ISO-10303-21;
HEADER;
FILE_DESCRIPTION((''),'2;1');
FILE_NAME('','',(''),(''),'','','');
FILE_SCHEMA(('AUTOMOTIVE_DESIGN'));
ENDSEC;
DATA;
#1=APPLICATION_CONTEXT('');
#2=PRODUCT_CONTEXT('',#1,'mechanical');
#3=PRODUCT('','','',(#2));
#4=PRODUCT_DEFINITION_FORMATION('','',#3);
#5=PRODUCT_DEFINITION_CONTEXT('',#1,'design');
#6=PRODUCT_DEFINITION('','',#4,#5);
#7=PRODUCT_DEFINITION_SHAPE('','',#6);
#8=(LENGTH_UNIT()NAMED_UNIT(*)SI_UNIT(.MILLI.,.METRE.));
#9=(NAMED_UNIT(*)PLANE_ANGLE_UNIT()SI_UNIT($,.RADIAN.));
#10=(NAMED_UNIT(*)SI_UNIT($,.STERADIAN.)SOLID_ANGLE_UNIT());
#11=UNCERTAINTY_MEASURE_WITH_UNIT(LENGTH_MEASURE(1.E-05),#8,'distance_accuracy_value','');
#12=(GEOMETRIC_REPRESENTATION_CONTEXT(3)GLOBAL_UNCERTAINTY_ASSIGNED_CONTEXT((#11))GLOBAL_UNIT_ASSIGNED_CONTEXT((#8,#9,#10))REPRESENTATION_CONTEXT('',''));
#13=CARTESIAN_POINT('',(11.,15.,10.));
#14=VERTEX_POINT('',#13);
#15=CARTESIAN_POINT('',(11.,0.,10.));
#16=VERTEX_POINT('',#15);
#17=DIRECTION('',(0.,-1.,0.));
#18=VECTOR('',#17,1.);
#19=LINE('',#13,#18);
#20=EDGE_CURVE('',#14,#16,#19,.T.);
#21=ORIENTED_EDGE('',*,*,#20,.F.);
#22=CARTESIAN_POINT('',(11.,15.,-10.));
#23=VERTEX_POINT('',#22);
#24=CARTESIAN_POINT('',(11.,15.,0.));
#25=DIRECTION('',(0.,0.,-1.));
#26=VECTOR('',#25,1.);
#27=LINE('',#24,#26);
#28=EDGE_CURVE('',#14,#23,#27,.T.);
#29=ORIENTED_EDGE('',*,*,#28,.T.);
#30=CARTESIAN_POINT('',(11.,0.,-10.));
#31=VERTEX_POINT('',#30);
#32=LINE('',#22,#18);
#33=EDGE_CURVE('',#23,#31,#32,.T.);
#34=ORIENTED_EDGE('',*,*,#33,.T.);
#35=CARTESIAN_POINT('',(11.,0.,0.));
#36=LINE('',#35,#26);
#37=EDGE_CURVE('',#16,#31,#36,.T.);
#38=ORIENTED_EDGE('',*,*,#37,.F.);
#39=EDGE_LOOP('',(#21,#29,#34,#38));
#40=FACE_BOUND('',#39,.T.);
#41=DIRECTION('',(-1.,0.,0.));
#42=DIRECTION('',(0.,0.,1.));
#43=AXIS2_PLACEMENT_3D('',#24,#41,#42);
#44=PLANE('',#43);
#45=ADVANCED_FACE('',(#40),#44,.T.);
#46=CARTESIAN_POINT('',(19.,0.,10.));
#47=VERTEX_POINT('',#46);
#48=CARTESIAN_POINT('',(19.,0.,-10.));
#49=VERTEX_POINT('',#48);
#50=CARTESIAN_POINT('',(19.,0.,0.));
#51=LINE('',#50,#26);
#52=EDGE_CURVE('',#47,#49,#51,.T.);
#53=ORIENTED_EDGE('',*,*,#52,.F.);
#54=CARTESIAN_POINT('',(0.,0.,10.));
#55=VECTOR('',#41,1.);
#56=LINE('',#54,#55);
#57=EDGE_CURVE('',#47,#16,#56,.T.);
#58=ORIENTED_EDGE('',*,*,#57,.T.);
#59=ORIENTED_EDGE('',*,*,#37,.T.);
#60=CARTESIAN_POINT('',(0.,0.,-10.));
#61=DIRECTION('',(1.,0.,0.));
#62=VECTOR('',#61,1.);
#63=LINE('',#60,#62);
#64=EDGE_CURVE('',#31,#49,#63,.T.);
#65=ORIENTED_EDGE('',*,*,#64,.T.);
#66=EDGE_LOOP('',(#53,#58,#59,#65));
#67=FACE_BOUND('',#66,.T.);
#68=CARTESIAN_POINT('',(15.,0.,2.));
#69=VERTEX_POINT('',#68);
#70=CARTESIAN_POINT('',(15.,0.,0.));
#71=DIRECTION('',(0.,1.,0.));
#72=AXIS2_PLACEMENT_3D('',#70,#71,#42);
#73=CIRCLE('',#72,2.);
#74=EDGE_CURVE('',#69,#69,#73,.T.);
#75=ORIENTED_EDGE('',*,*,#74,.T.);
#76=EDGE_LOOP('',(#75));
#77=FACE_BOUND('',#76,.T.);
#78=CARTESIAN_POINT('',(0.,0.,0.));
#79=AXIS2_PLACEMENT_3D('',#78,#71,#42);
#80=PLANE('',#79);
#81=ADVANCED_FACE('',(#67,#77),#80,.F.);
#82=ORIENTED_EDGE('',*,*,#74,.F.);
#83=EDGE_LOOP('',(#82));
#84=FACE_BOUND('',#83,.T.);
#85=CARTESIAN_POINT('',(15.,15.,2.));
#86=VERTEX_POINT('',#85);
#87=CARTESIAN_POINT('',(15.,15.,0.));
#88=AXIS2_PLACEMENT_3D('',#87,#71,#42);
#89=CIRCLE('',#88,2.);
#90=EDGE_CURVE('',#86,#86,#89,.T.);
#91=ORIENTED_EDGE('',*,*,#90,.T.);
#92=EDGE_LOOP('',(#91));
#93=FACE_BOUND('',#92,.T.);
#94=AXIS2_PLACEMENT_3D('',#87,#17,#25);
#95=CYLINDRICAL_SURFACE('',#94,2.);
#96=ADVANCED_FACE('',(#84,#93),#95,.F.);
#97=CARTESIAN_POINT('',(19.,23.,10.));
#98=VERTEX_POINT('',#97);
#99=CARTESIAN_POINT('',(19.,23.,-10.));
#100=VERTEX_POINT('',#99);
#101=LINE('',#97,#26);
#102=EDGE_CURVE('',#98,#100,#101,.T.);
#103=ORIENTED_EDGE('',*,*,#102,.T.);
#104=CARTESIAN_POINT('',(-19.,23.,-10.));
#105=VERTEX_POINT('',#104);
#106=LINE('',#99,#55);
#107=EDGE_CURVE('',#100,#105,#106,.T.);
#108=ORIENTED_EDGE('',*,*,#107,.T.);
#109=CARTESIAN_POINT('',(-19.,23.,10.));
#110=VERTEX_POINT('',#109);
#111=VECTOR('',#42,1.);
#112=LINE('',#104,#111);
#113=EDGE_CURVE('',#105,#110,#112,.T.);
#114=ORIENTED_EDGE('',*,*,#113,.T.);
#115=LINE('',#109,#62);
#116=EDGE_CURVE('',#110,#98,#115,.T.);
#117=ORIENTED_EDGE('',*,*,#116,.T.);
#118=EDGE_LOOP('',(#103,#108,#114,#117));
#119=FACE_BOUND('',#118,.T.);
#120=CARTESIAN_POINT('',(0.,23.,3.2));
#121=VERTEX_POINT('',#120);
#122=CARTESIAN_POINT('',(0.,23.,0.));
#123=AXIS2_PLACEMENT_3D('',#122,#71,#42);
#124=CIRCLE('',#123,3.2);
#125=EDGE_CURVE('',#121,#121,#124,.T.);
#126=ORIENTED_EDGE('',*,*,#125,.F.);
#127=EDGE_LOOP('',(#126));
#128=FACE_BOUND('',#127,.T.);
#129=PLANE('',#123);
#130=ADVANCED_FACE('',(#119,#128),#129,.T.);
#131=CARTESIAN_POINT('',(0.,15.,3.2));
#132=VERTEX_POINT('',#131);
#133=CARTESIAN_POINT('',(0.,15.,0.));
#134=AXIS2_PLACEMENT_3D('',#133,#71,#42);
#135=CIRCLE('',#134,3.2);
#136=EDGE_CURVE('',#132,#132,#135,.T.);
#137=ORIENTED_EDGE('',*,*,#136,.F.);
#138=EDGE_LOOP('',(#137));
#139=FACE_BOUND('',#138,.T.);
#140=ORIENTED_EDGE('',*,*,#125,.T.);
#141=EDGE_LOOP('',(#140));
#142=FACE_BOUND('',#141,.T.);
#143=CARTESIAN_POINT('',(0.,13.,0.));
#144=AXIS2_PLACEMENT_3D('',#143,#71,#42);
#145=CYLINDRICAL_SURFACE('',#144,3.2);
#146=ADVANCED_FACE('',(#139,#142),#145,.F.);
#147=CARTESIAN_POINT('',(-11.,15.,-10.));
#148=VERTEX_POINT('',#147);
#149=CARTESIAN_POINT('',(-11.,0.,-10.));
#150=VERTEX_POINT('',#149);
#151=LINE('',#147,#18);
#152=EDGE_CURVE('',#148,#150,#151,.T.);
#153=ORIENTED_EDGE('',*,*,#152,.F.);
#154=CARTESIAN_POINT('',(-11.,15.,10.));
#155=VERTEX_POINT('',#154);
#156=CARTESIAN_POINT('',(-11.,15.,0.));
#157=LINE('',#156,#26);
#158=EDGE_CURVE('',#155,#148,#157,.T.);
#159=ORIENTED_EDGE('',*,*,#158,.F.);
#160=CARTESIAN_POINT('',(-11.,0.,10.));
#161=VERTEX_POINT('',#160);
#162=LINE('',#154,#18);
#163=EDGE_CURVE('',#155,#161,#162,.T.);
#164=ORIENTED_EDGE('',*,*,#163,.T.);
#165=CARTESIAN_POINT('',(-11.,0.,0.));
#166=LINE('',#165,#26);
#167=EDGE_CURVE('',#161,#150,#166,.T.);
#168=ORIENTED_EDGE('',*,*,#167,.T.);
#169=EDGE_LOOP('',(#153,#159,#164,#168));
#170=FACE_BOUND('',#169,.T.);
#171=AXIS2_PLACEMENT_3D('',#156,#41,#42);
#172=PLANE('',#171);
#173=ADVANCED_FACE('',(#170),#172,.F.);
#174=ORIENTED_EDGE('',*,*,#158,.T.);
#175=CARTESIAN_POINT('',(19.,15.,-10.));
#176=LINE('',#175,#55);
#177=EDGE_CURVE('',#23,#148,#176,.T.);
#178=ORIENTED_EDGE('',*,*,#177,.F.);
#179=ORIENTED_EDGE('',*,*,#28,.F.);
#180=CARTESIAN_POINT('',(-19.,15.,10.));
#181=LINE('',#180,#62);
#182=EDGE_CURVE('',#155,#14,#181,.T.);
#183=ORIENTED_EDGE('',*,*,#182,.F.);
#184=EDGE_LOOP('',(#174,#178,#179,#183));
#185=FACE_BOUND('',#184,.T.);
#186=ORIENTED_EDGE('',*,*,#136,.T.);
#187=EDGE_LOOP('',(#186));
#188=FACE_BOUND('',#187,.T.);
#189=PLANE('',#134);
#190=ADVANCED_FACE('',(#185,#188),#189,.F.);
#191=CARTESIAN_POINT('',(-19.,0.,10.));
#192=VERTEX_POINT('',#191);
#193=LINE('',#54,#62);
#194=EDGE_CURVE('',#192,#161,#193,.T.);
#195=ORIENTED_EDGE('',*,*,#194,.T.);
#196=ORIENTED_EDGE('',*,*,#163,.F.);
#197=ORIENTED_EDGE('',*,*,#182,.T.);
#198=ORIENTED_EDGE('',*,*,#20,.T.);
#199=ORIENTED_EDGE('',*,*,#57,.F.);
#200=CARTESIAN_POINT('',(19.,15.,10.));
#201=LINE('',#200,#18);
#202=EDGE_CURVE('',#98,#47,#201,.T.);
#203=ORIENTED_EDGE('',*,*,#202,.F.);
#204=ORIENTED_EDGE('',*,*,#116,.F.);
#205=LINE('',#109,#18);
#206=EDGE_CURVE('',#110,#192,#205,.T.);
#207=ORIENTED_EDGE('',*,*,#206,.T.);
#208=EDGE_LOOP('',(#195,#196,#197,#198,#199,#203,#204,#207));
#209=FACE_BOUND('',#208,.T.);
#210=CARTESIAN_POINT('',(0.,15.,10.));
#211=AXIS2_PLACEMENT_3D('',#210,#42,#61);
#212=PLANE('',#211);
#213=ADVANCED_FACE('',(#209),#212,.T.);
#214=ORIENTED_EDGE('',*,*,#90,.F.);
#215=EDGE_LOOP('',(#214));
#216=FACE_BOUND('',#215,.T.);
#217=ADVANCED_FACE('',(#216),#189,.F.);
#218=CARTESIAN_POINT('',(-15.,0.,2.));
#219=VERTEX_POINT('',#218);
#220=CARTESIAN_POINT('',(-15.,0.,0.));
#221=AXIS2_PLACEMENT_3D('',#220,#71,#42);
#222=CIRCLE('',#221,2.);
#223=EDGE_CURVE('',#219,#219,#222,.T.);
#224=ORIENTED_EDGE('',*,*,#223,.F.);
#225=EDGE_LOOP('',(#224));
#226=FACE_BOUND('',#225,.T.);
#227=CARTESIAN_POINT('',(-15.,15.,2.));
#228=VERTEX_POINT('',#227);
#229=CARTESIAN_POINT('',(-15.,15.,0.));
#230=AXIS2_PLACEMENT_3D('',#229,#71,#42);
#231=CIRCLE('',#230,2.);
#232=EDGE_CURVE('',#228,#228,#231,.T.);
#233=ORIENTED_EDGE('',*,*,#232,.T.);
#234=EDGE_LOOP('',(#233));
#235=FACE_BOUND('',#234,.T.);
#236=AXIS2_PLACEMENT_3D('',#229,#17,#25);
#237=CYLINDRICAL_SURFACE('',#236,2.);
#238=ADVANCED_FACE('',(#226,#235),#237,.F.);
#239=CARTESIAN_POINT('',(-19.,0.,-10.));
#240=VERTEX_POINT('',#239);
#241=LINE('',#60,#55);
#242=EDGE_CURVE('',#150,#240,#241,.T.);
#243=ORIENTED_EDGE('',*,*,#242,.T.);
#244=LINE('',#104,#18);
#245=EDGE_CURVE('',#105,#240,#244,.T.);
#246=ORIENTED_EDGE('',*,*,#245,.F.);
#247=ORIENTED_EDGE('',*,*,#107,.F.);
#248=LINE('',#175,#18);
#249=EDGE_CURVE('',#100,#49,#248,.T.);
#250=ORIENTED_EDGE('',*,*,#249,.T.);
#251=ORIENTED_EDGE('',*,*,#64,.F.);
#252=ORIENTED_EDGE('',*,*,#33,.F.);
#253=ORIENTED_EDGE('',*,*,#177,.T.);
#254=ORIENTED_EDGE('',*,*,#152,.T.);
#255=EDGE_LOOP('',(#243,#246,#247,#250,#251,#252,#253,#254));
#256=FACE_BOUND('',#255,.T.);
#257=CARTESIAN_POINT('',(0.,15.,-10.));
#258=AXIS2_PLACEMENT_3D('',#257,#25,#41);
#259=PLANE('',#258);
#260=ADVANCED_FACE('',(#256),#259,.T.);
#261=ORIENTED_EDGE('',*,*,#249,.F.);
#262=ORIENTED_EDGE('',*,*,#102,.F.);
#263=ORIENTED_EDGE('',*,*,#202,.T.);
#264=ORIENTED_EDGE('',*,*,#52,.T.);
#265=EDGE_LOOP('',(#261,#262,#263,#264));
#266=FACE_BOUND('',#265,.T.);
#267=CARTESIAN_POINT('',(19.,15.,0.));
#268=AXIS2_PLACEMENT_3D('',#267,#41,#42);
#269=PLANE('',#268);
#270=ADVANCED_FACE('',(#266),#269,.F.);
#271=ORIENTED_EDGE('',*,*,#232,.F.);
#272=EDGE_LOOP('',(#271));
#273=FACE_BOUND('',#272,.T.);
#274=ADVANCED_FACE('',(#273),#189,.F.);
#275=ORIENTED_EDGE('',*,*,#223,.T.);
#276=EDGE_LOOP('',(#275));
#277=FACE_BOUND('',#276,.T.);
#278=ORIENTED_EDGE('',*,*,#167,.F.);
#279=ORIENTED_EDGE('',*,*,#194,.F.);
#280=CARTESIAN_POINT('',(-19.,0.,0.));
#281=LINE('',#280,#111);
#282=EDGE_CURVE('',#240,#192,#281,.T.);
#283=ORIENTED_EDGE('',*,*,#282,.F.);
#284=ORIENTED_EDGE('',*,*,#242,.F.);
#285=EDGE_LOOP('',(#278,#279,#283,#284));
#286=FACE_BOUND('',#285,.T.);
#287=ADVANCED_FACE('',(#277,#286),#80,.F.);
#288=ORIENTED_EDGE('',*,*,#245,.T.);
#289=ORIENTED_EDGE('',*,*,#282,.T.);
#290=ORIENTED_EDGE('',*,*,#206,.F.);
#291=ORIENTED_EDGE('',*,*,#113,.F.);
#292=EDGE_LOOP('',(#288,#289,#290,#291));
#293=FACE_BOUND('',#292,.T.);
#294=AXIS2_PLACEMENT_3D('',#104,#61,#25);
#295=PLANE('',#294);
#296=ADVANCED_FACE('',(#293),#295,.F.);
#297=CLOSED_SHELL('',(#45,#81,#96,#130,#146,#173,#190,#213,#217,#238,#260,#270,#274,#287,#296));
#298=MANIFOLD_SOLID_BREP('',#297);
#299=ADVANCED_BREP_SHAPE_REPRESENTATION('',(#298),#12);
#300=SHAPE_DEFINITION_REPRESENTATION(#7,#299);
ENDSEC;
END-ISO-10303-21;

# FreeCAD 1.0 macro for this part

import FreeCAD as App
import Part
import Sketcher
Q = App.Units.Quantity


def add_polygon(sketch, points):
    """Adds a closed chain of lines whose ends are joined by coincident constraints."""
    first, n = sketch.GeometryCount, len(points)
    for a, b in zip(points, points[1:] + points[:1]):
        sketch.addGeometry(Part.LineSegment(App.Vector(*a, 0), App.Vector(*b, 0)), False)
    for i in range(n):
        sketch.addConstraint(Sketcher.Constraint("Coincident", first + i, 2, first + (i + 1) % n, 1))

doc = App.newDocument("Part")
body = doc.addObject("PartDesign::Body", "Body")
body.AllowCompound = True

sketch1 = doc.addObject("Sketcher::SketchObject", "Sketch")
body.addObject(sketch1)
sketch1.AttachmentSupport = (doc.XZ_Plane, [""])
sketch1.MapMode = "FlatFace"
add_polygon(sketch1, [(11, -10), (11, 10), (19, 10), (19, -10)])
add_polygon(sketch1, [(-19, 10), (-11, 10), (-11, -10), (-19, -10)])
sketch1.addConstraint(Sketcher.Constraint("Vertical", 0))
sketch1.addConstraint(Sketcher.Constraint("Horizontal", 1))
sketch1.addConstraint(Sketcher.Constraint("Vertical", 2))
sketch1.addConstraint(Sketcher.Constraint("Horizontal", 3))
sketch1.addConstraint(Sketcher.Constraint("Horizontal", 4))
sketch1.addConstraint(Sketcher.Constraint("Vertical", 5))
sketch1.addConstraint(Sketcher.Constraint("Horizontal", 6))
sketch1.addConstraint(Sketcher.Constraint("Vertical", 7))
sketch1.addConstraint(Sketcher.Constraint("Symmetric", 3, 2, 4, 2, -1, 1))
sketch1.addConstraint(Sketcher.Constraint("Symmetric", 1, 2, 6, 2, -1, 1))
sketch1.addConstraint(Sketcher.Constraint("Horizontal", 1, 2, 4, 2))
sketch1.addConstraint(Sketcher.Constraint("DistanceX", 1, 1, 1, 2, Q("8 mm")))
sketch1.addConstraint(Sketcher.Constraint("DistanceY", 0, 1, 0, 2, Q("20 mm")))
sketch1.addConstraint(Sketcher.Constraint("DistanceX", -1, 1, 0, 2, Q("11 mm")))
pad1 = doc.addObject("PartDesign::Pad", "Pad")
body.addObject(pad1)
pad1.Profile = sketch1
pad1.Length = 15
pad1.Reversed = True

sketch2 = doc.addObject("Sketcher::SketchObject", "Sketch001")
body.addObject(sketch2)
sketch2.AttachmentSupport = (doc.XZ_Plane, [""])
sketch2.MapMode = "FlatFace"
sketch2.AttachmentOffset = App.Placement(App.Vector(0, 0, -15), App.Rotation())
add_polygon(sketch2, [(-19, -10), (-19, 10), (19, 10), (19, -10)])
sketch2.addConstraint(Sketcher.Constraint("Vertical", 0))
sketch2.addConstraint(Sketcher.Constraint("Horizontal", 1))
sketch2.addConstraint(Sketcher.Constraint("Vertical", 2))
sketch2.addConstraint(Sketcher.Constraint("Horizontal", 3))
sketch2.addConstraint(Sketcher.Constraint("Symmetric", 0, 2, 2, 2, -1, 1))
sketch2.addConstraint(Sketcher.Constraint("DistanceX", 1, 1, 1, 2, Q("38 mm")))
sketch2.addConstraint(Sketcher.Constraint("DistanceY", 0, 1, 0, 2, Q("20 mm")))
pad2 = doc.addObject("PartDesign::Pad", "Pad001")
body.addObject(pad2)
pad2.Profile = sketch2
pad2.Length = 8
pad2.Reversed = True

sketch3 = doc.addObject("Sketcher::SketchObject", "Sketch002")
body.addObject(sketch3)
sketch3.AttachmentSupport = (doc.XZ_Plane, [""])
sketch3.MapMode = "FlatFace"
sketch3.AttachmentOffset = App.Placement(App.Vector(0, 0, -23), App.Rotation())
sketch3.addGeometry(Part.Circle(App.Vector(0, 0, 0), App.Vector(0, 0, 1), 3.2), False)
sketch3.addConstraint(Sketcher.Constraint("Coincident", 0, 3, -1, 1))
sketch3.addConstraint(Sketcher.Constraint("Diameter", 0, Q("6.4 mm")))
pocket1 = doc.addObject("PartDesign::Pocket", "Pocket")
body.addObject(pocket1)
pocket1.Profile = sketch3
pocket1.Length = 10
pocket1.Reversed = True

sketch4 = doc.addObject("Sketcher::SketchObject", "Sketch003")
body.addObject(sketch4)
sketch4.AttachmentSupport = (doc.XZ_Plane, [""])
sketch4.MapMode = "FlatFace"
sketch4.addGeometry(Part.Circle(App.Vector(-15, 0, 0), App.Vector(0, 0, 1), 2), False)
sketch4.addGeometry(Part.Circle(App.Vector(15, 0, 0), App.Vector(0, 0, 1), 2), False)
sketch4.addConstraint(Sketcher.Constraint("Equal", 0, 1))
sketch4.addConstraint(Sketcher.Constraint("Symmetric", 0, 3, 1, 3, -1, 1))
sketch4.addConstraint(Sketcher.Constraint("PointOnObject", 0, 3, -1))
sketch4.addConstraint(Sketcher.Constraint("Diameter", 0, Q("4 mm")))
sketch4.addConstraint(Sketcher.Constraint("DistanceX", 0, 3, -1, 1, Q("15 mm")))
pocket2 = doc.addObject("PartDesign::Pocket", "Pocket001")
body.addObject(pocket2)
pocket2.Profile = sketch4
pocket2.Length = 15

doc.recompute()
